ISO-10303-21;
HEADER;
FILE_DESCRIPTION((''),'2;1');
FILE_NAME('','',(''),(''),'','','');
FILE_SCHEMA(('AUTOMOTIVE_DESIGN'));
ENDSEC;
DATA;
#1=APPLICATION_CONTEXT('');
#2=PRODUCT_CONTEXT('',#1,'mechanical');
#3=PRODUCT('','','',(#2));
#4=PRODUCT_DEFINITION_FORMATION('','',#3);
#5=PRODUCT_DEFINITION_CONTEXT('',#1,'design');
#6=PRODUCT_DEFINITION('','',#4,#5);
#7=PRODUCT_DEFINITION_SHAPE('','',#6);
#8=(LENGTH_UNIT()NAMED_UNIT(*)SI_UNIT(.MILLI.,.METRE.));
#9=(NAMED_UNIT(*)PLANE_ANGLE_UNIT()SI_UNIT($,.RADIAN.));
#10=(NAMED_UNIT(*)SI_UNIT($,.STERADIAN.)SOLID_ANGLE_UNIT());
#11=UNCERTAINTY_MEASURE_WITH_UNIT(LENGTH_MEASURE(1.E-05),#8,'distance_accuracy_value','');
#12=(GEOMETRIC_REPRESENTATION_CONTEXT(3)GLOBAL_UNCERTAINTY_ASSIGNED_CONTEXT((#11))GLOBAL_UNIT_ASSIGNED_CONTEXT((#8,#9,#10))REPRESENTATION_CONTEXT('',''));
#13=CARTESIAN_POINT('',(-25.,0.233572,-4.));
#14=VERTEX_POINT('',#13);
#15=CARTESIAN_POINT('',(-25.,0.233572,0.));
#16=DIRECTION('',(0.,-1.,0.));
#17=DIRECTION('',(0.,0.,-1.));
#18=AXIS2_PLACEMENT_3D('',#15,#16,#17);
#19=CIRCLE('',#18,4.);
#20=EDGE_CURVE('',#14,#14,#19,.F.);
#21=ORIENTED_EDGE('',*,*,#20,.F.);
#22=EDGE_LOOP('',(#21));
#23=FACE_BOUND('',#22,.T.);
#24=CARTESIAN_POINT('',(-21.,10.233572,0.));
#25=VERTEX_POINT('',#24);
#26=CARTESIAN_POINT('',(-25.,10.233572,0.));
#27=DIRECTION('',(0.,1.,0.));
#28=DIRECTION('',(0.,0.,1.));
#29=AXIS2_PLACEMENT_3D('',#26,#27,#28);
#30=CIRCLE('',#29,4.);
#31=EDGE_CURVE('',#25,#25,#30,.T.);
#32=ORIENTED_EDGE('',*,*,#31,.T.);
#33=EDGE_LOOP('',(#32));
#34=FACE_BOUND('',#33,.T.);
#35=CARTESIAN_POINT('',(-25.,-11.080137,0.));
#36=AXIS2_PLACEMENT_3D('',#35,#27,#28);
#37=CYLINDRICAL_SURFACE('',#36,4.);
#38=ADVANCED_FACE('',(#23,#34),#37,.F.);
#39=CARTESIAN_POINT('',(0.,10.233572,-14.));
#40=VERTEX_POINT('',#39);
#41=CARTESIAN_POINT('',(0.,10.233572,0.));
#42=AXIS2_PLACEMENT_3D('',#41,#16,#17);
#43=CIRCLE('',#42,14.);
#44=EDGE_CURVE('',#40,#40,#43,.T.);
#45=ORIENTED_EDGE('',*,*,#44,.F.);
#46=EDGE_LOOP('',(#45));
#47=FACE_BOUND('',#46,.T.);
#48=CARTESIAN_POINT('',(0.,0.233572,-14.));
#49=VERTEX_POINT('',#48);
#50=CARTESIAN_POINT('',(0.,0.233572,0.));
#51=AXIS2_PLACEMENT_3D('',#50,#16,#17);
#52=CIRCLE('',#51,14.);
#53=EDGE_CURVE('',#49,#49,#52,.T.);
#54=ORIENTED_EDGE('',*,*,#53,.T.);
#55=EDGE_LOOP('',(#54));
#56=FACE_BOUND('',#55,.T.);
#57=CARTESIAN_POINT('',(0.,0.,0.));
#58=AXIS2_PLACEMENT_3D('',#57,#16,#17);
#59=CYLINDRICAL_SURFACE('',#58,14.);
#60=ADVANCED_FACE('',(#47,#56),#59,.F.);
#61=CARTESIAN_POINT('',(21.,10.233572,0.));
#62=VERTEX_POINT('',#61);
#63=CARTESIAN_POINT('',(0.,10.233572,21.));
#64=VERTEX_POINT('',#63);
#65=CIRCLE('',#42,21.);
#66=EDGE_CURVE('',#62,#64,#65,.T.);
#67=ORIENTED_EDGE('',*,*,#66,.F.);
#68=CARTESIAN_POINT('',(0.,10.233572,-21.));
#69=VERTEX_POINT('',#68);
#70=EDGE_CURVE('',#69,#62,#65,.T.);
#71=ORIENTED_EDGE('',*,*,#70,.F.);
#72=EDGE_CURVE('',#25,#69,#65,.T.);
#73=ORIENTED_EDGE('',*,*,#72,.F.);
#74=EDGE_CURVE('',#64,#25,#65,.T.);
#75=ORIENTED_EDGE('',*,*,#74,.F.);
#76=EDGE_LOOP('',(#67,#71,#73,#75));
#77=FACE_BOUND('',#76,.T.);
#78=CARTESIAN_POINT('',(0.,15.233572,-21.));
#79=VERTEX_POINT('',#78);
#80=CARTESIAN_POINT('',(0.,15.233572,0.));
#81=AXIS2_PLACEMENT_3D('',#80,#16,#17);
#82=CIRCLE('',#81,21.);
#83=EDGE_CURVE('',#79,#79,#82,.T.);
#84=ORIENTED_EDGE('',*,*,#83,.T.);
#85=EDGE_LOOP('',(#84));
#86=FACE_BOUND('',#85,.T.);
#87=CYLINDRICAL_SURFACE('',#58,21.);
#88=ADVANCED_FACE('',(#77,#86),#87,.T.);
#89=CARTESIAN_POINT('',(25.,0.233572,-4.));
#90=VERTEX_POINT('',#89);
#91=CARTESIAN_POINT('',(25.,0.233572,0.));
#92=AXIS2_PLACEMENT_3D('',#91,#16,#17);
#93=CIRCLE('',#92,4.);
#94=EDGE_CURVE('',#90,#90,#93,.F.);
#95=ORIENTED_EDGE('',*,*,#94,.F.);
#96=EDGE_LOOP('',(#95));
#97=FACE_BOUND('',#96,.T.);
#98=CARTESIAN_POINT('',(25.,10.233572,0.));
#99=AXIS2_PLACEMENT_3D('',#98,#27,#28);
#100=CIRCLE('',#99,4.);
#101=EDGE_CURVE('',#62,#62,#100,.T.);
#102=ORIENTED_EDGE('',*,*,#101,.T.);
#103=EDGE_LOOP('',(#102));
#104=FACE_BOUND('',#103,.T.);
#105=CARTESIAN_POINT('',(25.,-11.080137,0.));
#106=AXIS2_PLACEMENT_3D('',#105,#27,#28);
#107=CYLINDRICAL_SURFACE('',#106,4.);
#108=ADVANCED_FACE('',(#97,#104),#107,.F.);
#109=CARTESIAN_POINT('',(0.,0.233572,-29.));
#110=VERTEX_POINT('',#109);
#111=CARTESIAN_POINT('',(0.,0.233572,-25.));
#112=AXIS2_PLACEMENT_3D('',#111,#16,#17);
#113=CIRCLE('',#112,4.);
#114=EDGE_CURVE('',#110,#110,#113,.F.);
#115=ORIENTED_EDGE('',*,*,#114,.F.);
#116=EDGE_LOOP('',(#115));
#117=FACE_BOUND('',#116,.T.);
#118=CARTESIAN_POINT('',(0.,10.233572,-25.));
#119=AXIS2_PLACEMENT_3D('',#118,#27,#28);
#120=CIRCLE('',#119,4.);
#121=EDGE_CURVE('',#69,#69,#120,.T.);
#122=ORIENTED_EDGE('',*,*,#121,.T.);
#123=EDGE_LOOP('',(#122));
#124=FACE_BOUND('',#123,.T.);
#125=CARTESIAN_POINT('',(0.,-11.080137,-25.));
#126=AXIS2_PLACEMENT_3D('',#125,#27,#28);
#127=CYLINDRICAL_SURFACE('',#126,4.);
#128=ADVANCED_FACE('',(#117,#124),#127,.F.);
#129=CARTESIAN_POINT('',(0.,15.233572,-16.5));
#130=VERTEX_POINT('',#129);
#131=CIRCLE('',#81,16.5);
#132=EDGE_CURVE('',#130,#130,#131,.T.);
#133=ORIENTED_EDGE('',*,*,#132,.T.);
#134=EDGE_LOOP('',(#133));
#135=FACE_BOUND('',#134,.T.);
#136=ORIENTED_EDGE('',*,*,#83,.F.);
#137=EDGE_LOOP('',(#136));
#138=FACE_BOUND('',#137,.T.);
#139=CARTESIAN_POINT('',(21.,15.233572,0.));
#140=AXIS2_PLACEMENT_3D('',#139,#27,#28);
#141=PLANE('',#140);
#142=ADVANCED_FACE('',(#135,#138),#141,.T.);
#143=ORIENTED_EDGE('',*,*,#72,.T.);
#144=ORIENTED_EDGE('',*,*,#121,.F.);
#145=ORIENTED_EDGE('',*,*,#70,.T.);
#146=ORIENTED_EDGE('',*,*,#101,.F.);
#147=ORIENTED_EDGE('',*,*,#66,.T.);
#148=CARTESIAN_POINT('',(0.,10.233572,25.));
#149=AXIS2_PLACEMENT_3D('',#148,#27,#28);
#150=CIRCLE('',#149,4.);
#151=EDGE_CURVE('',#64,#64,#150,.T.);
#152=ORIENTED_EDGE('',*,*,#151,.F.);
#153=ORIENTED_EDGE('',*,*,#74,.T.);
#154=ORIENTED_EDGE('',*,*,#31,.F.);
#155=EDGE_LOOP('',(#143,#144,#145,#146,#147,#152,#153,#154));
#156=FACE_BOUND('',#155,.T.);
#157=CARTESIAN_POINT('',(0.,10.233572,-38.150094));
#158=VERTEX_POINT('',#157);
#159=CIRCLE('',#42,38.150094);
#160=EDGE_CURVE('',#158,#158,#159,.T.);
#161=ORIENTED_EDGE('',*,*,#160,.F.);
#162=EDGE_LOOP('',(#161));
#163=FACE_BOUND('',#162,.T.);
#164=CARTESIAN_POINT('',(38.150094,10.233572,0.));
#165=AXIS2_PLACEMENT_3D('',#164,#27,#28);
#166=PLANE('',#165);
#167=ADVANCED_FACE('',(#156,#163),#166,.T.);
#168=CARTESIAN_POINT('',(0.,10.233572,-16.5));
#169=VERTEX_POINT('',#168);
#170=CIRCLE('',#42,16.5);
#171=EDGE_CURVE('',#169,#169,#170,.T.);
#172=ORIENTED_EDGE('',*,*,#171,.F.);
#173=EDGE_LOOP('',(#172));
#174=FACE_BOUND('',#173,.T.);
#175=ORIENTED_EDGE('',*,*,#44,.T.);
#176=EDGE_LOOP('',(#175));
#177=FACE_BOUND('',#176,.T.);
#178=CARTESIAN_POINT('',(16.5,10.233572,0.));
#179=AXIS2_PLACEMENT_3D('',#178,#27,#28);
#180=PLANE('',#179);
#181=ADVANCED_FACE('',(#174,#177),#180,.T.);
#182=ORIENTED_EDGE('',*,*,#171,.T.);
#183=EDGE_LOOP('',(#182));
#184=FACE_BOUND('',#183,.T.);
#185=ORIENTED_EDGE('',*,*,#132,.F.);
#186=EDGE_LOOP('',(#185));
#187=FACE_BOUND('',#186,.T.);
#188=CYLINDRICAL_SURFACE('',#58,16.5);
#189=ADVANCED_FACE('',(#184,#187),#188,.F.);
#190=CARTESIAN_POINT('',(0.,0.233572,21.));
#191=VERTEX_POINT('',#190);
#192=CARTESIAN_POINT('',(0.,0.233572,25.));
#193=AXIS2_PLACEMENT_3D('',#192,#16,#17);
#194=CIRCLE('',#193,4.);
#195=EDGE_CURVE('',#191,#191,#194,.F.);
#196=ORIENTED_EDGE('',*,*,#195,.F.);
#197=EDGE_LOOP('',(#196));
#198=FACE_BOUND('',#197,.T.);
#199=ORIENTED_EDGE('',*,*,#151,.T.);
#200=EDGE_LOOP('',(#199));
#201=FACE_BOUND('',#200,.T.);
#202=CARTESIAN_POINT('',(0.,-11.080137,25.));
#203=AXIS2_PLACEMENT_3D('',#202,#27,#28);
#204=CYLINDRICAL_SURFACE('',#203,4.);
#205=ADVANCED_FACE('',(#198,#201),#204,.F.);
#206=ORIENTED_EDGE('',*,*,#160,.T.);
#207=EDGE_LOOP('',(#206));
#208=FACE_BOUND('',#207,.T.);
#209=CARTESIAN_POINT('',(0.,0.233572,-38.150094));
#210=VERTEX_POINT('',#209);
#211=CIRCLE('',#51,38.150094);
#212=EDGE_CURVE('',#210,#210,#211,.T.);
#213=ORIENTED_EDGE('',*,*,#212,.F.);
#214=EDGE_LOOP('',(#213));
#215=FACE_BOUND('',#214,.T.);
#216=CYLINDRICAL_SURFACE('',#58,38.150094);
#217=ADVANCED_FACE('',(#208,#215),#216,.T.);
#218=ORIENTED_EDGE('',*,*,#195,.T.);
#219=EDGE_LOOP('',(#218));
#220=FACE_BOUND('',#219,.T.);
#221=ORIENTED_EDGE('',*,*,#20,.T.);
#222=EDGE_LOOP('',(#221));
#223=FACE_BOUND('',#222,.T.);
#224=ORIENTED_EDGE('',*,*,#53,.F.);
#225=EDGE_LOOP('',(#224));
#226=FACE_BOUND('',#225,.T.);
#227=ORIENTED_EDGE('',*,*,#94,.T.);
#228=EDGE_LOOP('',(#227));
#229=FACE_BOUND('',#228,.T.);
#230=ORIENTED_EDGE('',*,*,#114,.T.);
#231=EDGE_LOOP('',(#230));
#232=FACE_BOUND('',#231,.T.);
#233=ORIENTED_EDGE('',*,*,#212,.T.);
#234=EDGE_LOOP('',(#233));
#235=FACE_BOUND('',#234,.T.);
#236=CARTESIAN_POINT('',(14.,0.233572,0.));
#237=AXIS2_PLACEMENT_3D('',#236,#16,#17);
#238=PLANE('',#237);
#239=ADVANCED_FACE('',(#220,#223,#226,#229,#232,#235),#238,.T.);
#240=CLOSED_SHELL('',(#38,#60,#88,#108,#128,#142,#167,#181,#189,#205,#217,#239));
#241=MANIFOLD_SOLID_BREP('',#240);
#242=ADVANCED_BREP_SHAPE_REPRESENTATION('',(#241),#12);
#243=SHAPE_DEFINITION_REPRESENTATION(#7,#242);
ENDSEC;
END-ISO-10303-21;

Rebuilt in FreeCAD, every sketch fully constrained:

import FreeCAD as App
import Part
import Sketcher

doc = App.newDocument("Part")
body = doc.addObject("PartDesign::Body", "Body")

# Sketch on XY plane
sketch1 = body.newObject("Sketcher::SketchObject", "Sketch")
sketch1.AttachmentSupport = (doc.getObject("XY_Plane"), [""])
sketch1.MapMode = "FlatFace"
sketch1.addGeometry(Part.LineSegment(App.Vector(14, 0.2, 0), App.Vector(38.2, 0.2, 0)), False)
sketch1.addGeometry(Part.LineSegment(App.Vector(38.2, 0.2, 0), App.Vector(38.2, 10.2, 0)), False)
sketch1.addGeometry(Part.LineSegment(App.Vector(38.2, 10.2, 0), App.Vector(21, 10.2, 0)), False)
sketch1.addGeometry(Part.LineSegment(App.Vector(21, 10.2, 0), App.Vector(21, 15.2, 0)), False)
sketch1.addGeometry(Part.LineSegment(App.Vector(21, 15.2, 0), App.Vector(16.5, 15.2, 0)), False)
sketch1.addGeometry(Part.LineSegment(App.Vector(16.5, 15.2, 0), App.Vector(16.5, 10.2, 0)), False)
sketch1.addGeometry(Part.LineSegment(App.Vector(16.5, 10.2, 0), App.Vector(14, 10.2, 0)), False)
sketch1.addGeometry(Part.LineSegment(App.Vector(14, 10.2, 0), App.Vector(14, 0.2, 0)), False)
sketch1.addConstraint(Sketcher.Constraint("Coincident", 0, 2, 1, 1))
sketch1.addConstraint(Sketcher.Constraint("Coincident", 1, 2, 2, 1))
sketch1.addConstraint(Sketcher.Constraint("Coincident", 2, 2, 3, 1))
sketch1.addConstraint(Sketcher.Constraint("Coincident", 3, 2, 4, 1))
sketch1.addConstraint(Sketcher.Constraint("Coincident", 4, 2, 5, 1))
sketch1.addConstraint(Sketcher.Constraint("Coincident", 5, 2, 6, 1))
sketch1.addConstraint(Sketcher.Constraint("Coincident", 6, 2, 7, 1))
sketch1.addConstraint(Sketcher.Constraint("Coincident", 7, 2, 0, 1))
sketch1.addConstraint(Sketcher.Constraint("Horizontal", 0))
sketch1.addConstraint(Sketcher.Constraint("Vertical", 1))
sketch1.addConstraint(Sketcher.Constraint("Horizontal", 2))
sketch1.addConstraint(Sketcher.Constraint("Vertical", 3))
sketch1.addConstraint(Sketcher.Constraint("Horizontal", 4))
sketch1.addConstraint(Sketcher.Constraint("Vertical", 5))
sketch1.addConstraint(Sketcher.Constraint("Horizontal", 6))
sketch1.addConstraint(Sketcher.Constraint("Vertical", 7))
sketch1.addConstraint(Sketcher.Constraint("Horizontal", 2, 2, 5, 2))
sketch1.addConstraint(Sketcher.Constraint("DistanceY", 1, 1, 1, 2, 10.0))
sketch1.addConstraint(Sketcher.Constraint("DistanceY", 3, 1, 3, 2, 5.0))
sketch1.addConstraint(Sketcher.Constraint("DistanceX", 4, 2, 4, 1, 4.5))
sketch1.addConstraint(Sketcher.Constraint("DistanceX", 6, 2, 6, 1, 2.5))
sketch1.addConstraint(Sketcher.Constraint("DistanceX", -1, 1, 2, 2, 21.0))
sketch1.addConstraint(Sketcher.Constraint("DistanceX", 0, 1, 0, 2, 24.150094))
sketch1.addConstraint(Sketcher.Constraint("DistanceY", -1, 1, 0, 2, 0.233572))
revolution = body.newObject("PartDesign::Revolution", "Revolution")
revolution.Profile = sketch1
revolution.ReferenceAxis = (sketch1, ["V_Axis"])
revolution.Angle = 360

# Sketch on XZ plane
sketch2 = body.newObject("Sketcher::SketchObject", "Sketch001")
sketch2.AttachmentSupport = (doc.getObject("XZ_Plane"), [""])
sketch2.MapMode = "FlatFace"
sketch2.AttachmentOffset = App.Placement(App.Vector(0, 0, -10.233572), App.Rotation())
sketch2.addGeometry(Part.Circle(App.Vector(25, 0, 0), App.Vector(0, 0, 1), 4), False)
sketch2.addGeometry(Part.Circle(App.Vector(0, -25, 0), App.Vector(0, 0, 1), 4), False)
sketch2.addGeometry(Part.Circle(App.Vector(-25, 0, 0), App.Vector(0, 0, 1), 4), False)
sketch2.addGeometry(Part.Circle(App.Vector(0, 25, 0), App.Vector(0, 0, 1), 4), False)
sketch2.addConstraint(Sketcher.Constraint("Equal", 0, 1))
sketch2.addConstraint(Sketcher.Constraint("Equal", 1, 2))
sketch2.addConstraint(Sketcher.Constraint("Equal", 2, 3))
sketch2.addConstraint(Sketcher.Constraint("Symmetric", 0, 3, 2, 3, -1, 1))
sketch2.addConstraint(Sketcher.Constraint("Symmetric", 1, 3, 3, 3, -1, 1))
sketch2.addConstraint(Sketcher.Constraint("PointOnObject", 0, 3, -1))
sketch2.addConstraint(Sketcher.Constraint("PointOnObject", 1, 3, -2))
sketch2.addConstraint(Sketcher.Constraint("Diameter", 0, 8.0))
sketch2.addConstraint(Sketcher.Constraint("DistanceX", -1, 1, 0, 3, 25.0))
sketch2.addConstraint(Sketcher.Constraint("DistanceY", 1, 3, -1, 1, 25.0))
pocket1 = body.newObject("PartDesign::Pocket", "Pocket")
pocket1.Profile = sketch2
pocket1.Length = 10
pocket1.Reversed = True

doc.recompute()
